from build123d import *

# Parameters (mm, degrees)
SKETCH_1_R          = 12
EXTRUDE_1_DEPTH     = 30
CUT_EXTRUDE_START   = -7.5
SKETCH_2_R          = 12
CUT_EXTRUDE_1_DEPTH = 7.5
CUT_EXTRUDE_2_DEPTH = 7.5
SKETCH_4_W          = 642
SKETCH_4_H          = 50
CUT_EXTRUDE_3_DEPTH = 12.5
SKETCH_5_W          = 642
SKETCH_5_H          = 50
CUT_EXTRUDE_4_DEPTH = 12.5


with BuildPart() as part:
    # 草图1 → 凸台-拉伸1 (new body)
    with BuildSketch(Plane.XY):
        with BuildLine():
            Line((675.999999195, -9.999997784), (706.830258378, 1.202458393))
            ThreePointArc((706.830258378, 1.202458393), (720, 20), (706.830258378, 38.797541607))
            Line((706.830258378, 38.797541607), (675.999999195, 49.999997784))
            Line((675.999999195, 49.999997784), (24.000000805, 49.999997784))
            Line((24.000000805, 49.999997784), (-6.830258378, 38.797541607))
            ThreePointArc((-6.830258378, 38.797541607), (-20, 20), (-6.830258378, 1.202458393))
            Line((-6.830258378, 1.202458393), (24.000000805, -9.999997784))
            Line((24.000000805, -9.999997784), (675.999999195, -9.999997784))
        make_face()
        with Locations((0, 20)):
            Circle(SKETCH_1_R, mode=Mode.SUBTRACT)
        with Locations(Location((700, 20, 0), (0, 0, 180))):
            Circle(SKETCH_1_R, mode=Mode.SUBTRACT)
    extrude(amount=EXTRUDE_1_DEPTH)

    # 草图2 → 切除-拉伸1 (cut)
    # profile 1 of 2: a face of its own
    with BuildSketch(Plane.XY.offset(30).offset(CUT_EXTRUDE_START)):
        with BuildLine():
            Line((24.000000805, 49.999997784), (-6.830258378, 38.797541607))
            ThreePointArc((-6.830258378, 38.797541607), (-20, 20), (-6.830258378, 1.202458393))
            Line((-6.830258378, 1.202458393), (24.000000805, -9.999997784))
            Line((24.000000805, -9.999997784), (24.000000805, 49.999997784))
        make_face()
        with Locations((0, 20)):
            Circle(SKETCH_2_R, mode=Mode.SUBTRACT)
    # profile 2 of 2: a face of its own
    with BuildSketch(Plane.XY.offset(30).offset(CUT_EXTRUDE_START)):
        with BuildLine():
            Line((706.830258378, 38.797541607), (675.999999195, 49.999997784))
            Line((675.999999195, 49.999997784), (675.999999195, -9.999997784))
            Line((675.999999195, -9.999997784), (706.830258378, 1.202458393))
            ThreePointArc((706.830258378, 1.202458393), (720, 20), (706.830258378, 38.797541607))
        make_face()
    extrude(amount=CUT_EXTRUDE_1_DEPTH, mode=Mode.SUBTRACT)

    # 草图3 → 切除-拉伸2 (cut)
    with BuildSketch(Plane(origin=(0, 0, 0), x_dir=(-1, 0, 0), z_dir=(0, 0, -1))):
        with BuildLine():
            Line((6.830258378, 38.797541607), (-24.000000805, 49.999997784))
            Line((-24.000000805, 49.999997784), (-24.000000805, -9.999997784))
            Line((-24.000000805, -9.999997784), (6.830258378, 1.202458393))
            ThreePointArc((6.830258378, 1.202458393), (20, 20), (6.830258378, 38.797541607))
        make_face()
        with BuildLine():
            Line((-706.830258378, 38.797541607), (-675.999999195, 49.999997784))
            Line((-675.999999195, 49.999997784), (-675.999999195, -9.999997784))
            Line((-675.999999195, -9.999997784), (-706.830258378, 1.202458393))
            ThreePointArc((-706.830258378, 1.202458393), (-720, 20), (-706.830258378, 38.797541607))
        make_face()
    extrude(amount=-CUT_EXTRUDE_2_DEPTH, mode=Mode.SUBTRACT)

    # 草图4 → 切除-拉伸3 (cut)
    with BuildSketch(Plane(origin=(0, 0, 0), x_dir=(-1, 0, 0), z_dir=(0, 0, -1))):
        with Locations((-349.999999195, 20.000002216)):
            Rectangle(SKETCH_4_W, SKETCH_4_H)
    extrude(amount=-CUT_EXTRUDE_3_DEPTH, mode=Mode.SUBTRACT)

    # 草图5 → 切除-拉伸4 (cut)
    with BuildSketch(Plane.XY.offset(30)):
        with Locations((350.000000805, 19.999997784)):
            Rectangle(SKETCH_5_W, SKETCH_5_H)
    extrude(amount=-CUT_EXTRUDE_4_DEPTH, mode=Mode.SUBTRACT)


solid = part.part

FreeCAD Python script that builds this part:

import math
import FreeCAD as App
import Part
import Sketcher


def add_polygon(sketch, points):
    """Adds a closed chain of lines whose ends are joined by coincident constraints."""
    first, n = sketch.GeometryCount, len(points)
    for a, b in zip(points, points[1:] + points[:1]):
        sketch.addGeometry(Part.LineSegment(App.Vector(*a, 0), App.Vector(*b, 0)), False)
    for i in range(n):
        sketch.addConstraint(Sketcher.Constraint("Coincident", first + i, 2, first + (i + 1) % n, 1))

doc = App.newDocument("Part")
body = doc.addObject("PartDesign::Body", "Body")

sketch1 = body.newObject("Sketcher::SketchObject", "Sketch")
sketch1.AttachmentSupport = (doc.getObject("XY_Plane"), [""])
sketch1.MapMode = "FlatFace"
sketch1.addGeometry(Part.LineSegment(App.Vector(675.999999, -9.999998, 0), App.Vector(706.830258, 1.202458, 0)), False)
sketch1.addGeometry(Part.ArcOfCircle(Part.Circle(App.Vector(700, 20, 0), App.Vector(0, 0, 1), 20), math.radians(-70.030924), math.radians(70.030924)), False)
sketch1.addGeometry(Part.LineSegment(App.Vector(706.830258, 38.797542, 0), App.Vector(675.999999, 49.999998, 0)), False)
sketch1.addGeometry(Part.LineSegment(App.Vector(675.999999, 49.999998, 0), App.Vector(24.000001, 49.999998, 0)), False)
sketch1.addGeometry(Part.LineSegment(App.Vector(24.000001, 49.999998, 0), App.Vector(-6.830258, 38.797542, 0)), False)
sketch1.addGeometry(Part.ArcOfCircle(Part.Circle(App.Vector(0, 20, 0), App.Vector(0, 0, 1), 20), math.radians(109.969076), math.radians(250.030924)), False)
sketch1.addGeometry(Part.LineSegment(App.Vector(-6.830258, 1.202458, 0), App.Vector(24.000001, -9.999998, 0)), False)
sketch1.addGeometry(Part.LineSegment(App.Vector(24.000001, -9.999998, 0), App.Vector(675.999999, -9.999998, 0)), False)
sketch1.addGeometry(Part.Circle(App.Vector(0, 20, 0), App.Vector(0, 0, 1), 12), False)
sketch1.addGeometry(Part.Circle(App.Vector(700, 20, 0), App.Vector(0, 0, 1), 12), False)
sketch1.addConstraint(Sketcher.Constraint("Tangent", 0, 2, 1, 1))
sketch1.addConstraint(Sketcher.Constraint("Tangent", 1, 2, 2, 1))
sketch1.addConstraint(Sketcher.Constraint("Coincident", 2, 2, 3, 1))
sketch1.addConstraint(Sketcher.Constraint("Coincident", 3, 2, 4, 1))
sketch1.addConstraint(Sketcher.Constraint("Tangent", 4, 2, 5, 1))
sketch1.addConstraint(Sketcher.Constraint("Tangent", 5, 2, 6, 1))
sketch1.addConstraint(Sketcher.Constraint("Coincident", 6, 2, 7, 1))
sketch1.addConstraint(Sketcher.Constraint("Coincident", 7, 2, 0, 1))
sketch1.addConstraint(Sketcher.Constraint("Horizontal", 3))
sketch1.addConstraint(Sketcher.Constraint("Horizontal", 7))
sketch1.addConstraint(Sketcher.Constraint("Coincident", 8, 3, 5, 3))
sketch1.addConstraint(Sketcher.Constraint("Coincident", 9, 3, 1, 3))
sketch1.addConstraint(Sketcher.Constraint("Equal", 1, 5))
sketch1.addConstraint(Sketcher.Constraint("Equal", 8, 9))
sketch1.addConstraint(Sketcher.Constraint("PointOnObject", 5, 3, -2))
sketch1.addConstraint(Sketcher.Constraint("Parallel", 0, 4))
sketch1.addConstraint(Sketcher.Constraint("Parallel", 2, 6))
sketch1.addConstraint(Sketcher.Constraint("Horizontal", 1, 3, 5, 3))
sketch1.addConstraint(Sketcher.Constraint("Horizontal", 1, 2, 4, 2))
sketch1.addConstraint(Sketcher.Constraint("Vertical", 3, 2, 6, 2))
sketch1.addConstraint(Sketcher.Constraint("Diameter", 8, 24.0))
sketch1.addConstraint(Sketcher.Constraint("Radius", 1, 20.0))
sketch1.addConstraint(Sketcher.Constraint("DistanceX", 3, 2, 3, 1, 651.999998))
sketch1.addConstraint(Sketcher.Constraint("DistanceX", -1, 1, 1, 3, 700.0))
sketch1.addConstraint(Sketcher.Constraint("DistanceY", -1, 1, 1, 3, 20.0))
sketch1.addConstraint(Sketcher.Constraint("DistanceX", -1, 1, 0, 2, 706.830258))
pad1 = body.newObject("PartDesign::Pad", "Pad")
pad1.Profile = sketch1
pad1.Length = 30

sketch2 = body.newObject("Sketcher::SketchObject", "Sketch001")
sketch2.AttachmentSupport = (doc.getObject("XY_Plane"), [""])
sketch2.MapMode = "FlatFace"
sketch2.AttachmentOffset = App.Placement(App.Vector(0, 0, 22.5), App.Rotation())
sketch2.addGeometry(Part.LineSegment(App.Vector(24.000001, 49.999998, 0), App.Vector(-6.830258, 38.797542, 0)), False)
sketch2.addGeometry(Part.ArcOfCircle(Part.Circle(App.Vector(0, 20, 0), App.Vector(0, 0, 1), 20), math.radians(109.969076), math.radians(250.030924)), False)
sketch2.addGeometry(Part.LineSegment(App.Vector(-6.830258, 1.202458, 0), App.Vector(24.000001, -9.999998, 0)), False)
sketch2.addGeometry(Part.LineSegment(App.Vector(24.000001, -9.999998, 0), App.Vector(24.000001, 49.999998, 0)), False)
sketch2.addGeometry(Part.Circle(App.Vector(0, 20, 0), App.Vector(0, 0, 1), 12), False)
sketch2.addGeometry(Part.LineSegment(App.Vector(706.830258, 38.797542, 0), App.Vector(675.999999, 49.999998, 0)), False)
sketch2.addGeometry(Part.LineSegment(App.Vector(675.999999, 49.999998, 0), App.Vector(675.999999, -9.999998, 0)), False)
sketch2.addGeometry(Part.LineSegment(App.Vector(675.999999, -9.999998, 0), App.Vector(706.830258, 1.202458, 0)), False)
sketch2.addGeometry(Part.ArcOfCircle(Part.Circle(App.Vector(700, 20, 0), App.Vector(0, 0, 1), 20), math.radians(-70.030924), math.radians(70.030924)), False)
sketch2.addConstraint(Sketcher.Constraint("Tangent", 0, 2, 1, 1))
sketch2.addConstraint(Sketcher.Constraint("Tangent", 1, 2, 2, 1))
sketch2.addConstraint(Sketcher.Constraint("Coincident", 2, 2, 3, 1))
sketch2.addConstraint(Sketcher.Constraint("Coincident", 3, 2, 0, 1))
sketch2.addConstraint(Sketcher.Constraint("Coincident", 5, 2, 6, 1))
sketch2.addConstraint(Sketcher.Constraint("Coincident", 6, 2, 7, 1))
sketch2.addConstraint(Sketcher.Constraint("Tangent", 7, 2, 8, 1))
sketch2.addConstraint(Sketcher.Constraint("Tangent", 8, 2, 5, 1))
sketch2.addConstraint(Sketcher.Constraint("Vertical", 3))
sketch2.addConstraint(Sketcher.Constraint("Vertical", 6))
sketch2.addConstraint(Sketcher.Constraint("Coincident", 4, 3, 1, 3))
sketch2.addConstraint(Sketcher.Constraint("Equal", 1, 8))
sketch2.addConstraint(Sketcher.Constraint("PointOnObject", 1, 3, -2))
sketch2.addConstraint(Sketcher.Constraint("Parallel", 2, 5))
sketch2.addConstraint(Sketcher.Constraint("Parallel", 0, 7))
sketch2.addConstraint(Sketcher.Constraint("Horizontal", 4, 3, 8, 3))
sketch2.addConstraint(Sketcher.Constraint("Horizontal", 3, 2, 5, 2))
sketch2.addConstraint(Sketcher.Constraint("Horizontal", 2, 2, 6, 2))
sketch2.addConstraint(Sketcher.Constraint("Diameter", 4, 24.0))
sketch2.addConstraint(Sketcher.Constraint("Radius", 1, 20.0))
sketch2.addConstraint(Sketcher.Constraint("DistanceY", -1, 1, 1, 3, 20.0))
sketch2.addConstraint(Sketcher.Constraint("DistanceX", -1, 1, 8, 3, 700.0))
sketch2.addConstraint(Sketcher.Constraint("DistanceX", -1, 1, 2, 2, 24.000001))
sketch2.addConstraint(Sketcher.Constraint("DistanceY", 3, 1, 3, 2, 59.999996))
pocket1 = body.newObject("PartDesign::Pocket", "Pocket")
pocket1.Profile = sketch2
pocket1.Length = 7.5
pocket1.Reversed = True

sketch3 = body.newObject("Sketcher::SketchObject", "Sketch002")
sketch3.AttachmentSupport = (doc.getObject("XY_Plane"), [""])
sketch3.MapMode = "FlatFace"
sketch3.addGeometry(Part.LineSegment(App.Vector(-6.830258, 38.797542, 0), App.Vector(24.000001, 49.999998, 0)), False)
sketch3.addGeometry(Part.LineSegment(App.Vector(24.000001, 49.999998, 0), App.Vector(24.000001, -9.999998, 0)), False)
sketch3.addGeometry(Part.LineSegment(App.Vector(24.000001, -9.999998, 0), App.Vector(-6.830258, 1.202458, 0)), False)
sketch3.addGeometry(Part.ArcOfCircle(Part.Circle(App.Vector(0, 20, 0), App.Vector(0, 0, 1), 20), math.radians(109.969076), math.radians(250.030924)), False)
sketch3.addGeometry(Part.LineSegment(App.Vector(675.999999, 49.999998, 0), App.Vector(706.830258, 38.797542, 0)), False)
sketch3.addGeometry(Part.ArcOfCircle(Part.Circle(App.Vector(700, 20, 0), App.Vector(0, 0, 1), 20), math.radians(-70.030924), math.radians(70.030924)), False)
sketch3.addGeometry(Part.LineSegment(App.Vector(706.830258, 1.202458, 0), App.Vector(675.999999, -9.999998, 0)), False)
sketch3.addGeometry(Part.LineSegment(App.Vector(675.999999, -9.999998, 0), App.Vector(675.999999, 49.999998, 0)), False)
sketch3.addConstraint(Sketcher.Constraint("Coincident", 0, 2, 1, 1))
sketch3.addConstraint(Sketcher.Constraint("Coincident", 1, 2, 2, 1))
sketch3.addConstraint(Sketcher.Constraint("Tangent", 2, 2, 3, 2))
sketch3.addConstraint(Sketcher.Constraint("Tangent", 3, 1, 0, 1))
sketch3.addConstraint(Sketcher.Constraint("Tangent", 4, 2, 5, 2))
sketch3.addConstraint(Sketcher.Constraint("Tangent", 5, 1, 6, 1))
sketch3.addConstraint(Sketcher.Constraint("Coincident", 6, 2, 7, 1))
sketch3.addConstraint(Sketcher.Constraint("Coincident", 7, 2, 4, 1))
sketch3.addConstraint(Sketcher.Constraint("Vertical", 1))
sketch3.addConstraint(Sketcher.Constraint("Vertical", 7))
sketch3.addConstraint(Sketcher.Constraint("Equal", 3, 5))
sketch3.addConstraint(Sketcher.Constraint("PointOnObject", 3, 3, -2))
sketch3.addConstraint(Sketcher.Constraint("Parallel", 2, 4))
sketch3.addConstraint(Sketcher.Constraint("Parallel", 0, 6))
sketch3.addConstraint(Sketcher.Constraint("Horizontal", 3, 3, 5, 3))
sketch3.addConstraint(Sketcher.Constraint("Horizontal", 3, 1, 4, 2))
sketch3.addConstraint(Sketcher.Constraint("Horizontal", 1, 2, 6, 2))
sketch3.addConstraint(Sketcher.Constraint("Radius", 3, 20.0))
sketch3.addConstraint(Sketcher.Constraint("DistanceY", -1, 1, 3, 3, 20.0))
sketch3.addConstraint(Sketcher.Constraint("DistanceX", -1, 1, 5, 3, 700.0))
sketch3.addConstraint(Sketcher.Constraint("DistanceX", -1, 1, 0, 2, 24.000001))
sketch3.addConstraint(Sketcher.Constraint("DistanceY", 1, 2, 1, 1, 59.999996))
pocket2 = body.newObject("PartDesign::Pocket", "Pocket001")
pocket2.Profile = sketch3
pocket2.Length = 7.5
pocket2.Reversed = True

sketch4 = body.newObject("Sketcher::SketchObject", "Sketch003")
sketch4.AttachmentSupport = (doc.getObject("XY_Plane"), [""])
sketch4.MapMode = "FlatFace"
add_polygon(sketch4, [(670.999999, 45.000002), (670.999999, -4.999998), (28.999999, -4.999998), (28.999999, 45.000002)])
sketch4.addConstraint(Sketcher.Constraint("Vertical", 0))
sketch4.addConstraint(Sketcher.Constraint("Horizontal", 1))
sketch4.addConstraint(Sketcher.Constraint("Vertical", 2))
sketch4.addConstraint(Sketcher.Constraint("Horizontal", 3))
sketch4.addConstraint(Sketcher.Constraint("DistanceX", 1, 2, 1, 1, 642.0))
sketch4.addConstraint(Sketcher.Constraint("DistanceY", 0, 2, 0, 1, 50.0))
sketch4.addConstraint(Sketcher.Constraint("DistanceX", -1, 1, 0, 2, 670.999999))
sketch4.addConstraint(Sketcher.Constraint("DistanceY", 0, 2, -1, 1, 4.999998))
pocket3 = body.newObject("PartDesign::Pocket", "Pocket002")
pocket3.Profile = sketch4
pocket3.Length = 12.5
pocket3.Reversed = True

sketch5 = body.newObject("Sketcher::SketchObject", "Sketch004")
sketch5.AttachmentSupport = (doc.getObject("XY_Plane"), [""])
sketch5.MapMode = "FlatFace"
sketch5.AttachmentOffset = App.Placement(App.Vector(0, 0, 30), App.Rotation())
add_polygon(sketch5, [(29.000001, 44.999998), (29.000001, -5.000002), (671.000001, -5.000002), (671.000001, 44.999998)])
sketch5.addConstraint(Sketcher.Constraint("Vertical", 0))
sketch5.addConstraint(Sketcher.Constraint("Horizontal", 1))
sketch5.addConstraint(Sketcher.Constraint("Vertical", 2))
sketch5.addConstraint(Sketcher.Constraint("Horizontal", 3))
sketch5.addConstraint(Sketcher.Constraint("DistanceX", 1, 1, 1, 2, 642.0))
sketch5.addConstraint(Sketcher.Constraint("DistanceY", 0, 2, 0, 1, 50.0))
sketch5.addConstraint(Sketcher.Constraint("DistanceX", -1, 1, 0, 2, 29.000001))
sketch5.addConstraint(Sketcher.Constraint("DistanceY", 0, 2, -1, 1, 5.000002))
pocket4 = body.newObject("PartDesign::Pocket", "Pocket003")
pocket4.Profile = sketch5
pocket4.Length = 12.5

doc.recompute()
